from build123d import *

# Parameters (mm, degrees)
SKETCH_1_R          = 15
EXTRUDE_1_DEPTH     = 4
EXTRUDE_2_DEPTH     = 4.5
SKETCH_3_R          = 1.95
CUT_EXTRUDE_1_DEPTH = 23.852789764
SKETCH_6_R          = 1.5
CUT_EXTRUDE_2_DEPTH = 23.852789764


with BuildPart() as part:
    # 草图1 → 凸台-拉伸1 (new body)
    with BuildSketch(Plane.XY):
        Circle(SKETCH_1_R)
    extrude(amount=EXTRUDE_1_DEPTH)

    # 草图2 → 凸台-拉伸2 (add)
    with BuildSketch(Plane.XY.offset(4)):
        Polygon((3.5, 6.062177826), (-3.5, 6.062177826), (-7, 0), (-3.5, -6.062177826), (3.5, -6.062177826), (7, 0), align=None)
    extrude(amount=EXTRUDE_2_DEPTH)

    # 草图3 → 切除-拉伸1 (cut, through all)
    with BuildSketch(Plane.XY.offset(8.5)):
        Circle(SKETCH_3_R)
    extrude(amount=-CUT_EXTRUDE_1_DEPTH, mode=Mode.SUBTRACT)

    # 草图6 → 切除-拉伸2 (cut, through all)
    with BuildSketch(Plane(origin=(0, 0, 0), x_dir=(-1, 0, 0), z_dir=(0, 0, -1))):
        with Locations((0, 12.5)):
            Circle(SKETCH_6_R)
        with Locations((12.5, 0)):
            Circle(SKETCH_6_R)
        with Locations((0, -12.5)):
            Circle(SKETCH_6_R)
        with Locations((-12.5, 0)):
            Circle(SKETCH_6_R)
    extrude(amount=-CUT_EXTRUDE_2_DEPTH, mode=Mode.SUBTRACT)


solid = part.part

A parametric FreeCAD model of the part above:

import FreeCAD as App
import Part
import Sketcher
Q = App.Units.Quantity


def add_polygon(sketch, points):
    """Adds a closed chain of lines whose ends are joined by coincident constraints."""
    first, n = sketch.GeometryCount, len(points)
    for a, b in zip(points, points[1:] + points[:1]):
        sketch.addGeometry(Part.LineSegment(App.Vector(*a, 0), App.Vector(*b, 0)), False)
    for i in range(n):
        sketch.addConstraint(Sketcher.Constraint("Coincident", first + i, 2, first + (i + 1) % n, 1))

doc = App.newDocument("Part")
body = doc.addObject("PartDesign::Body", "Body")

# Sketch on XY plane
sketch1 = body.newObject("Sketcher::SketchObject", "Sketch")
sketch1.AttachmentSupport = (doc.getObject("XY_Plane"), [""])
sketch1.MapMode = "FlatFace"
sketch1.addGeometry(Part.Circle(App.Vector(0, 0, 0), App.Vector(0, 0, 1), 15), False)
sketch1.addConstraint(Sketcher.Constraint("Coincident", 0, 3, -1, 1))
sketch1.addConstraint(Sketcher.Constraint("Diameter", 0, 30.0))
pad1 = body.newObject("PartDesign::Pad", "Pad")
pad1.Profile = sketch1
pad1.Length = 4

# Sketch on XY plane
sketch2 = body.newObject("Sketcher::SketchObject", "Sketch001")
sketch2.AttachmentSupport = (doc.getObject("XY_Plane"), [""])
sketch2.MapMode = "FlatFace"
sketch2.AttachmentOffset = App.Placement(App.Vector(0, 0, 4), App.Rotation())
add_polygon(sketch2, [(3.5, 6.062178), (-3.5, 6.062178), (-7, 0), (-3.5, -6.062178), (3.5, -6.062178), (7, 0)])  # lines 0-5
sketch2.addConstraint(Sketcher.Constraint("Horizontal", 0))
sketch2.addConstraint(Sketcher.Constraint("Horizontal", 3))
sketch2.addConstraint(Sketcher.Constraint("Symmetric", 0, 2, 3, 2, -1, 1))
sketch2.addConstraint(Sketcher.Constraint("Symmetric", 1, 2, 4, 2, -1, 1))
sketch2.addConstraint(Sketcher.Constraint("PointOnObject", 1, 2, -1))
sketch2.addConstraint(Sketcher.Constraint("Parallel", 2, 5))
sketch2.addConstraint(Sketcher.Constraint("Vertical", 0, 2, 2, 2))
sketch2.addConstraint(Sketcher.Constraint("DistanceX", 0, 2, 0, 1, 7.0))
sketch2.addConstraint(Sketcher.Constraint("Angle", 1, Q("-120 deg")))
sketch2.addConstraint(Sketcher.Constraint("Distance", 1, 7.0))
pad2 = body.newObject("PartDesign::Pad", "Pad001")
pad2.Profile = sketch2
pad2.Length = 4.5

# Sketch on XY plane
sketch3 = body.newObject("Sketcher::SketchObject", "Sketch002")
sketch3.AttachmentSupport = (doc.getObject("XY_Plane"), [""])
sketch3.MapMode = "FlatFace"
sketch3.AttachmentOffset = App.Placement(App.Vector(0, 0, 8.5), App.Rotation())
sketch3.addGeometry(Part.Circle(App.Vector(0, 0, 0), App.Vector(0, 0, 1), 1.95), False)
sketch3.addConstraint(Sketcher.Constraint("Coincident", 0, 3, -1, 1))
sketch3.addConstraint(Sketcher.Constraint("Diameter", 0, 3.9))
pocket1 = body.newObject("PartDesign::Pocket", "Pocket")
pocket1.Profile = sketch3
pocket1.Type = "ThroughAll"

# Sketch on XY plane
sketch4 = body.newObject("Sketcher::SketchObject", "Sketch003")
sketch4.AttachmentSupport = (doc.getObject("XY_Plane"), [""])
sketch4.MapMode = "FlatFace"
sketch4.addGeometry(Part.Circle(App.Vector(0, 12.5, 0), App.Vector(0, 0, 1), 1.5), False)
sketch4.addGeometry(Part.Circle(App.Vector(-12.5, 0, 0), App.Vector(0, 0, 1), 1.5), False)
sketch4.addGeometry(Part.Circle(App.Vector(0, -12.5, 0), App.Vector(0, 0, 1), 1.5), False)
sketch4.addGeometry(Part.Circle(App.Vector(12.5, 0, 0), App.Vector(0, 0, 1), 1.5), False)
sketch4.addConstraint(Sketcher.Constraint("Equal", 0, 1))
sketch4.addConstraint(Sketcher.Constraint("Equal", 1, 2))
sketch4.addConstraint(Sketcher.Constraint("Equal", 2, 3))
sketch4.addConstraint(Sketcher.Constraint("Symmetric", 0, 3, 2, 3, -1, 1))
sketch4.addConstraint(Sketcher.Constraint("Symmetric", 1, 3, 3, 3, -1, 1))
sketch4.addConstraint(Sketcher.Constraint("PointOnObject", 0, 3, -2))
sketch4.addConstraint(Sketcher.Constraint("PointOnObject", 1, 3, -1))
sketch4.addConstraint(Sketcher.Constraint("Diameter", 0, 3.0))
sketch4.addConstraint(Sketcher.Constraint("DistanceY", 2, 3, 0, 3, 25.0))
sketch4.addConstraint(Sketcher.Constraint("DistanceX", 1, 3, 3, 3, 25.0))
pocket2 = body.newObject("PartDesign::Pocket", "Pocket001")
pocket2.Profile = sketch4
pocket2.Type = "ThroughAll"
pocket2.Reversed = True

doc.recompute()
